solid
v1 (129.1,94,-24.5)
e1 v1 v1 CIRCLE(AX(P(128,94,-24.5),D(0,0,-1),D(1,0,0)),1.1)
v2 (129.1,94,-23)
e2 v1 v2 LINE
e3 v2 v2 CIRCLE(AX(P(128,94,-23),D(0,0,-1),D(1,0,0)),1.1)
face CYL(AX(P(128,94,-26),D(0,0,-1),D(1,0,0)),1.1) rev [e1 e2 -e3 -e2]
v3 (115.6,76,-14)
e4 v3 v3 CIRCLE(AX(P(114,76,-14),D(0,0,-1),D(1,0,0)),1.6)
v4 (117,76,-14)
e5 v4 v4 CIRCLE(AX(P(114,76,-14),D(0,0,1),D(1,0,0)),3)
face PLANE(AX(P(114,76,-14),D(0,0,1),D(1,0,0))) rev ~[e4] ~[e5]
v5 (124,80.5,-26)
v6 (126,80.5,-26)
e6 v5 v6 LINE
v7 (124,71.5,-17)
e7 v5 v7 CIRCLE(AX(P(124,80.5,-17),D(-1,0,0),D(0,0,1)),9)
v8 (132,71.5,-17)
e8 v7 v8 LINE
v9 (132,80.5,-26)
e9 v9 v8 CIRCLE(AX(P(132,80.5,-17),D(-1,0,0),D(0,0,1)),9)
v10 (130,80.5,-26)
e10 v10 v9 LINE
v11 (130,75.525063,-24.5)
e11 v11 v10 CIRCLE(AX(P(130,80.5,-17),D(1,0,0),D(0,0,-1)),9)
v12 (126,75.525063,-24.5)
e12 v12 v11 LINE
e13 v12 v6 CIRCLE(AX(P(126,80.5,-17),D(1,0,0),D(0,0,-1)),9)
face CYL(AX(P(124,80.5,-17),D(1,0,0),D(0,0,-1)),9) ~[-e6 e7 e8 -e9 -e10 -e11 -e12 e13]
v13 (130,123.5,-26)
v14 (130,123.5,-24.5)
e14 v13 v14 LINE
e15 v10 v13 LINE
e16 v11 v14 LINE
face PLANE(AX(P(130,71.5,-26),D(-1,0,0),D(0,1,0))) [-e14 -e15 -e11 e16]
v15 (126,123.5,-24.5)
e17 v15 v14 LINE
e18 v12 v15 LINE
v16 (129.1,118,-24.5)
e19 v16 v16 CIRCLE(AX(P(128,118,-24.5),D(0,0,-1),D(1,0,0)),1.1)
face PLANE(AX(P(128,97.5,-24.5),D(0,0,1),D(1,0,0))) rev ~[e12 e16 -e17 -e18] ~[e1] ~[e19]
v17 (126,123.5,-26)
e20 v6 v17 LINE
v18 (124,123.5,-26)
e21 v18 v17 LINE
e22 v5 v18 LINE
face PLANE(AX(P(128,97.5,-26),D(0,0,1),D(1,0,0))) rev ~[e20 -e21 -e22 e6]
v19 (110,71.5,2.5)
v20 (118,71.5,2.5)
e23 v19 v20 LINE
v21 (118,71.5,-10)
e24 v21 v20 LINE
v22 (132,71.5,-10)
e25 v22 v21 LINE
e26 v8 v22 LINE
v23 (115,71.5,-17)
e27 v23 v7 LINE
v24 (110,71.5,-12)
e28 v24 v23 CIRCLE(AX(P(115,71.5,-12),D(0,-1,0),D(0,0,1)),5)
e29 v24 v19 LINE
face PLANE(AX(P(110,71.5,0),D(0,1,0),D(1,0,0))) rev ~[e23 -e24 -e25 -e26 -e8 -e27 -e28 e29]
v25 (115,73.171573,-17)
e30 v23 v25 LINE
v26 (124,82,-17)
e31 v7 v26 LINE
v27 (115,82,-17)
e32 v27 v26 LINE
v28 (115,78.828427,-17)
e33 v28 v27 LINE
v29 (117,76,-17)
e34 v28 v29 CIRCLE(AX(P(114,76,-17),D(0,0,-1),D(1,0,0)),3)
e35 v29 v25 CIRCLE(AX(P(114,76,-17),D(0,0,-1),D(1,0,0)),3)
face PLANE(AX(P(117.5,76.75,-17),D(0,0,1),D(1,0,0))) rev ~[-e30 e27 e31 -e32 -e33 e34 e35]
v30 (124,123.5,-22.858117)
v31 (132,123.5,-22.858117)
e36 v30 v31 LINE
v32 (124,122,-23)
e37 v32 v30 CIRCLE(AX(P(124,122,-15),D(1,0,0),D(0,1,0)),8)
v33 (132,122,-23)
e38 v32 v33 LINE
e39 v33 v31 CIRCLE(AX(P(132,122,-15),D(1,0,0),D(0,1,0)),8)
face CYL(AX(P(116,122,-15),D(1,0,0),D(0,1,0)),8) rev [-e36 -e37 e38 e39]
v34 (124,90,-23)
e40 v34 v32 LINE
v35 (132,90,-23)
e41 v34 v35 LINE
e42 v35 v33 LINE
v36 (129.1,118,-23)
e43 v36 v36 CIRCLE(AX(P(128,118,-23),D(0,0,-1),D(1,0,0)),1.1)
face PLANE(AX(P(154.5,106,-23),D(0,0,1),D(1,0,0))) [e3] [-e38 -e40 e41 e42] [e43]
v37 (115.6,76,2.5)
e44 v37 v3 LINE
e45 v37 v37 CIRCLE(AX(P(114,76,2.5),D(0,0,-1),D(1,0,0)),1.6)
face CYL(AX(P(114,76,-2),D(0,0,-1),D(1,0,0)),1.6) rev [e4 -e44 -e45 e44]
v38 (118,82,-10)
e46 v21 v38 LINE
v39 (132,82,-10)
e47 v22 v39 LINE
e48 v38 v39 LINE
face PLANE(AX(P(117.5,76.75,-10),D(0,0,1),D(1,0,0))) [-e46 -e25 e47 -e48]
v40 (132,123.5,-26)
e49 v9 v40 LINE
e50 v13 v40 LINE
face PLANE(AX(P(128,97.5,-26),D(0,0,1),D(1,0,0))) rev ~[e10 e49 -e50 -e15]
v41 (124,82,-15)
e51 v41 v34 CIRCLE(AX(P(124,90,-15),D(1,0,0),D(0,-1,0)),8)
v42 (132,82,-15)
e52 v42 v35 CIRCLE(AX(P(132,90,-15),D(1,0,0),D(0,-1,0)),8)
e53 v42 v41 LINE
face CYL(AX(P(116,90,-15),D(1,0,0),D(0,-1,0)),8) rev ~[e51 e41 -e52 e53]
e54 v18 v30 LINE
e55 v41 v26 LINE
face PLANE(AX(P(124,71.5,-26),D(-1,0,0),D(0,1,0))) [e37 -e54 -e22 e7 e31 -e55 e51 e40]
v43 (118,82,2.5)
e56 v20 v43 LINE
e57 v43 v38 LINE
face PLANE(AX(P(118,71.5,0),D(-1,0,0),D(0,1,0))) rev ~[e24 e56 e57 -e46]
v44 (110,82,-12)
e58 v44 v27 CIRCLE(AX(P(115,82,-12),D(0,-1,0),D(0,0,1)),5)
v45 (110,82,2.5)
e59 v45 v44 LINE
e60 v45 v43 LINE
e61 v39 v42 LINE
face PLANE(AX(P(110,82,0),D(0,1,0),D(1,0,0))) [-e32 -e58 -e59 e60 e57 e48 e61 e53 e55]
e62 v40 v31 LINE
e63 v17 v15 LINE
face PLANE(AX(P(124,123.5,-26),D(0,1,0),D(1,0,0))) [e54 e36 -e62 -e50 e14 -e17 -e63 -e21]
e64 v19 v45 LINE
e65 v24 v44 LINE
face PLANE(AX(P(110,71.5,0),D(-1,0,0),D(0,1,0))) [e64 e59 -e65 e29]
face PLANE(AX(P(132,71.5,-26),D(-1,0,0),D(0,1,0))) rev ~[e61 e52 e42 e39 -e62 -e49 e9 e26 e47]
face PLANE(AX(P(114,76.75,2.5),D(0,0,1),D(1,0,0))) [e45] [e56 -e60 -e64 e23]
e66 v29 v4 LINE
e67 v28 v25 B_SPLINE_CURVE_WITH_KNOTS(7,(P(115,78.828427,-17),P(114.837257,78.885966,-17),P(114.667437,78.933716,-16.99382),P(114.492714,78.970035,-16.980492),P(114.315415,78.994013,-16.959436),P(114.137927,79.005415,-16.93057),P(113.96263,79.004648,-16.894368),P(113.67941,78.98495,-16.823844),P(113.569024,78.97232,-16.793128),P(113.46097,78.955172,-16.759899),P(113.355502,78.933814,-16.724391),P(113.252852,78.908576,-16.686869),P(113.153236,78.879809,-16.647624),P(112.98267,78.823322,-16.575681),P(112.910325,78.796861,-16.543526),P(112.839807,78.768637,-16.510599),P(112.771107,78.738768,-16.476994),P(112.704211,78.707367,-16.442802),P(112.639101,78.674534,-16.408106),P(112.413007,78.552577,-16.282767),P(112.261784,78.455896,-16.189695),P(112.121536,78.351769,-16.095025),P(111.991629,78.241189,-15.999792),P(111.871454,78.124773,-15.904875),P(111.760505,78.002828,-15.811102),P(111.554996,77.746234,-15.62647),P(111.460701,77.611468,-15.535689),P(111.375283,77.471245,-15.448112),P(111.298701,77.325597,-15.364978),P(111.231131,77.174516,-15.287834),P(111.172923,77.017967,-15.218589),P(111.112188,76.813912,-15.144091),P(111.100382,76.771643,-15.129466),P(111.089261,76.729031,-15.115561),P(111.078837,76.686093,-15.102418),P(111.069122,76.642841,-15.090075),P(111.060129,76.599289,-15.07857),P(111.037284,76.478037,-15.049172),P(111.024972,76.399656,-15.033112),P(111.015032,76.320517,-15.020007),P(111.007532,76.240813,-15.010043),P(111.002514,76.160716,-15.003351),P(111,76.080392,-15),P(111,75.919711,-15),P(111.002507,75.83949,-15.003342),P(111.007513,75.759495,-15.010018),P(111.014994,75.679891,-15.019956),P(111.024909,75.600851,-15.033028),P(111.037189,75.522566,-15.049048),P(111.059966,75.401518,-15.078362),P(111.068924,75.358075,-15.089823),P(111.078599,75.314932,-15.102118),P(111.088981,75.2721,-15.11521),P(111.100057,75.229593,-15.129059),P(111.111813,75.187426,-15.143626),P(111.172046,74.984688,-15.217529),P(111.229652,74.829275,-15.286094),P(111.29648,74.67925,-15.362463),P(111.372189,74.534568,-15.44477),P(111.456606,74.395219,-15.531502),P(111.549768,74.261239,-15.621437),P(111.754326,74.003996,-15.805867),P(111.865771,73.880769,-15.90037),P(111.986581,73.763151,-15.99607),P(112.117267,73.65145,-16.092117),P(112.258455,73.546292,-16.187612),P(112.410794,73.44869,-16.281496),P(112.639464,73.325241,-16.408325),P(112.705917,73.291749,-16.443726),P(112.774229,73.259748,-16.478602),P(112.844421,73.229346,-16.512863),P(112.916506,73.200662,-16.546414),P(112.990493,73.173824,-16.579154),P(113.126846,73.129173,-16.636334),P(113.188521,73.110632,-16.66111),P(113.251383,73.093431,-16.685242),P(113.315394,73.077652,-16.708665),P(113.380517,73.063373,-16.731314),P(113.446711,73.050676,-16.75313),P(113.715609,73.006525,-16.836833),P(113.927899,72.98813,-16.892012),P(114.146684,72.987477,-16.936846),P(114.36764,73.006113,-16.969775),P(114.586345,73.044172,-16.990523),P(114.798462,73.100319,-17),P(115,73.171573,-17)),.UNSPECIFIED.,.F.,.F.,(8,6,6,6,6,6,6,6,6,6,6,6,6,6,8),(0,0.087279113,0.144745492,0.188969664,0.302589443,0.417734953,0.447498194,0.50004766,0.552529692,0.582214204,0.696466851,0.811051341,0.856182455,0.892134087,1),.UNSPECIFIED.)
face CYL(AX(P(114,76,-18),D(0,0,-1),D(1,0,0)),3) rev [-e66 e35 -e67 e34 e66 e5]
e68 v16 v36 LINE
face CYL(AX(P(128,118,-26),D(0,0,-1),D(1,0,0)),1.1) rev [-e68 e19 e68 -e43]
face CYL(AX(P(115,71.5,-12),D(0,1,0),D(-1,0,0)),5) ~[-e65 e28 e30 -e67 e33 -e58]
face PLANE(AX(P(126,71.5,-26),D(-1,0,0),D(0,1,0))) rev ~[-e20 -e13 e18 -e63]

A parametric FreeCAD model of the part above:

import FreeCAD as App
import Part
import Sketcher

V = App.Vector
Q = App.Units.Quantity


def edges_at(feature, points):
    """Names of the edges that pass closest to the given points."""
    edges = feature.Shape.Edges
    near = lambda p: min(range(len(edges)), key=lambda i: edges[i].distToShape(Part.Vertex(*p))[0])
    return sorted({f"Edge{near(p) + 1}" for p in points})

doc = App.newDocument("Part")
body = doc.addObject("PartDesign::Body", "Body")

# Sketch on XY plane
sketch1 = doc.addObject("Sketcher::SketchObject", "Sketch")
body.addObject(sketch1)
sketch1.AttachmentSupport = (doc.XY_Plane, [""])
sketch1.MapMode = "FlatFace"
sketch1.AttachmentOffset = App.Placement(V(0, 0, -28), App.Rotation())
sketch1.addGeometry(Part.Circle(V(74, 76, 0), V(0, 0, 1), 1.6), False)
sketch1.addConstraint([
    Sketcher.Constraint("Diameter", 0, Q("3.2 mm")),
    Sketcher.Constraint("DistanceX", -1, 1, 0, 3, Q("74 mm")),
    Sketcher.Constraint("DistanceY", -1, 1, 0, 3, Q("76 mm")),
])
pad1 = doc.addObject("PartDesign::Pad", "Pad")
body.addObject(pad1)
pad1.Profile = sketch1
pad1.Length = 28
body2 = doc.addObject("PartDesign::Body", "Body001")

# Sketch on XY plane
sketch2 = doc.addObject("Sketcher::SketchObject", "Sketch001")
body2.addObject(sketch2)
sketch2.AttachmentSupport = (doc.getObject("XY_Plane001"), [""])
sketch2.MapMode = "FlatFace"
sketch2.AttachmentOffset = App.Placement(V(0, 0, -26), App.Rotation())
sketch2.addGeometry([
    Part.LineSegment(V(70, 82, 0), V(70, 71.5, 0)),
    Part.LineSegment(V(70, 71.5, 0), V(78, 71.5, 0)),
    Part.LineSegment(V(78, 71.5, 0), V(78, 82, 0)),
    Part.LineSegment(V(78, 82, 0), V(70, 82, 0)),
], False)
sketch2.addConstraint([
    Sketcher.Constraint("Coincident", 0, 2, 1, 1),
    Sketcher.Constraint("Coincident", 1, 2, 2, 1),
    Sketcher.Constraint("Coincident", 2, 2, 3, 1),
    Sketcher.Constraint("Coincident", 3, 2, 0, 1),
    Sketcher.Constraint("Vertical", 0),
    Sketcher.Constraint("Horizontal", 1),
    Sketcher.Constraint("Vertical", 2),
    Sketcher.Constraint("Horizontal", 3),
    Sketcher.Constraint("DistanceX", 1, 1, 1, 2, Q("8 mm")),
    Sketcher.Constraint("DistanceY", 0, 2, 0, 1, Q("10.5 mm")),
    Sketcher.Constraint("DistanceX", -1, 1, 0, 2, Q("70 mm")),
    Sketcher.Constraint("DistanceY", -1, 1, 2, 2, Q("82 mm")),
])
pad2 = doc.addObject("PartDesign::Pad", "Pad001")
body2.addObject(pad2)
pad2.Profile = sketch2
pad2.Length = 2.5
doc.recompute()

boolean = doc.addObject("PartDesign::Boolean", "Boolean")
body2.addObject(boolean)
boolean.Type = "Cut"
boolean.addObjects([body])
body3 = doc.addObject("PartDesign::Body", "Body002")
doc.recompute()

body2.Placement = App.Placement(V(40, 0, 26), App.Rotation(V(0, 0, 1), 0))
boolean2 = doc.addObject("PartDesign::Boolean", "Boolean001")
body3.addObject(boolean2)
boolean2.Type = "Fuse"
boolean2.addObjects([body2])
body4 = doc.addObject("PartDesign::Body", "Body003")

# Sketch on XY plane
sketch3 = doc.addObject("Sketcher::SketchObject", "Sketch002")
body4.addObject(sketch3)
sketch3.AttachmentSupport = (doc.getObject("XY_Plane003"), [""])
sketch3.MapMode = "FlatFace"
sketch3.AttachmentOffset = App.Placement(V(0, 0, -26), App.Rotation())
sketch3.addGeometry(Part.Circle(V(74, 118, 0), V(0, 0, 1), 1.1), False)
sketch3.addConstraint([
    Sketcher.Constraint("Diameter", 0, Q("2.2 mm")),
    Sketcher.Constraint("DistanceX", -1, 1, 0, 3, Q("74 mm")),
    Sketcher.Constraint("DistanceY", -1, 1, 0, 3, Q("118 mm")),
])
pad3 = doc.addObject("PartDesign::Pad", "Pad002")
body4.addObject(pad3)
pad3.Profile = sketch3
pad3.Length = 28
body5 = doc.addObject("PartDesign::Body", "Body004")
body5.AllowCompound = True

# Sketch on XY plane
sketch4 = doc.addObject("Sketcher::SketchObject", "Sketch003")
body5.addObject(sketch4)
sketch4.AttachmentSupport = (doc.getObject("XY_Plane004"), [""])
sketch4.MapMode = "FlatFace"
sketch4.AttachmentOffset = App.Placement(V(0, 0, -26), App.Rotation())
sketch4.addGeometry(Part.Circle(V(74, 94, 0), V(0, 0, 1), 1.1), False)
sketch4.addConstraint([
    Sketcher.Constraint("Diameter", 0, Q("2.2 mm")),
    Sketcher.Constraint("DistanceX", -1, 1, 0, 3, Q("74 mm")),
    Sketcher.Constraint("DistanceY", -1, 1, 0, 3, Q("94 mm")),
])
pad4 = doc.addObject("PartDesign::Pad", "Pad003")
body5.addObject(pad4)
pad4.Profile = sketch4
pad4.Length = 28
doc.recompute()

boolean3 = doc.addObject("PartDesign::Boolean", "Boolean002")
body5.addObject(boolean3)
boolean3.Type = "Fuse"
boolean3.addObjects([body4])
body6 = doc.addObject("PartDesign::Body", "Body005")
body6.AllowCompound = True
doc.recompute()

body5.Placement = App.Placement(V(54, 0, 0), App.Rotation(V(0, 0, 1), 0))
boolean4 = doc.addObject("PartDesign::Boolean", "Boolean003")
body6.addObject(boolean4)
boolean4.Type = "Fuse"
boolean4.addObjects([body5])
body7 = doc.addObject("PartDesign::Body", "Body006")

# Sketch on XY plane
sketch5 = doc.addObject("Sketcher::SketchObject", "Sketch004")
body7.addObject(sketch5)
sketch5.AttachmentSupport = (doc.getObject("XY_Plane006"), [""])
sketch5.MapMode = "FlatFace"
sketch5.AttachmentOffset = App.Placement(V(0, 0, -26), App.Rotation())
sketch5.addGeometry(Part.Circle(V(74, 79, 0), V(0, 0, 1), 1.6), False)
sketch5.addConstraint([
    Sketcher.Constraint("Diameter", 0, Q("3.2 mm")),
    Sketcher.Constraint("DistanceX", -1, 1, 0, 3, Q("74 mm")),
    Sketcher.Constraint("DistanceY", -1, 1, 0, 3, Q("79 mm")),
])
pad5 = doc.addObject("PartDesign::Pad", "Pad004")
body7.addObject(pad5)
pad5.Profile = sketch5
pad5.Length = 28
body8 = doc.addObject("PartDesign::Body", "Body007")

# Sketch on XY plane
sketch6 = doc.addObject("Sketcher::SketchObject", "Sketch005")
body8.addObject(sketch6)
sketch6.AttachmentSupport = (doc.getObject("XY_Plane007"), [""])
sketch6.MapMode = "FlatFace"
sketch6.AttachmentOffset = App.Placement(V(0, 0, -26), App.Rotation())
sketch6.addGeometry(Part.Circle(V(74, 79, 0), V(0, 0, 1), 3), False)
sketch6.addConstraint([
    Sketcher.Constraint("Diameter", 0, Q("6 mm")),
    Sketcher.Constraint("DistanceX", -1, 1, 0, 3, Q("74 mm")),
    Sketcher.Constraint("DistanceY", -1, 1, 0, 3, Q("79 mm")),
])
pad6 = doc.addObject("PartDesign::Pad", "Pad005")
body8.addObject(pad6)
pad6.Profile = sketch6
pad6.Length = 4
doc.recompute()

boolean5 = doc.addObject("PartDesign::Boolean", "Boolean004")
body8.addObject(boolean5)
boolean5.Type = "Fuse"
boolean5.addObjects([body7])
body9 = doc.addObject("PartDesign::Body", "Body008")
doc.recompute()

body8.Placement = App.Placement(V(40, -3, 8), App.Rotation(V(0, 0, 1), 0))
boolean6 = doc.addObject("PartDesign::Boolean", "Boolean005")
body9.addObject(boolean6)
boolean6.Type = "Fuse"
boolean6.addObjects([body8])
body10 = doc.addObject("PartDesign::Body", "Body009")

# Sketch on XY plane
sketch7 = doc.addObject("Sketcher::SketchObject", "Sketch006")
body10.addObject(sketch7)
sketch7.AttachmentSupport = (doc.getObject("XY_Plane009"), [""])
sketch7.MapMode = "FlatFace"
sketch7.AttachmentOffset = App.Placement(V(0, 0, -10), App.Rotation())
sketch7.addGeometry([
    Part.LineSegment(V(124, 82, 0), V(124, 71.5, 0)),
    Part.LineSegment(V(124, 71.5, 0), V(132, 71.5, 0)),
    Part.LineSegment(V(132, 71.5, 0), V(132, 82, 0)),
    Part.LineSegment(V(132, 82, 0), V(124, 82, 0)),
], False)
sketch7.addConstraint([
    Sketcher.Constraint("Coincident", 0, 2, 1, 1),
    Sketcher.Constraint("Coincident", 1, 2, 2, 1),
    Sketcher.Constraint("Coincident", 2, 2, 3, 1),
    Sketcher.Constraint("Coincident", 3, 2, 0, 1),
    Sketcher.Constraint("Vertical", 0),
    Sketcher.Constraint("Horizontal", 1),
    Sketcher.Constraint("Vertical", 2),
    Sketcher.Constraint("Horizontal", 3),
    Sketcher.Constraint("DistanceX", 1, 1, 1, 2, Q("8 mm")),
    Sketcher.Constraint("DistanceY", 0, 2, 0, 1, Q("10.5 mm")),
    Sketcher.Constraint("DistanceX", -1, 1, 0, 2, Q("124 mm")),
    Sketcher.Constraint("DistanceY", -1, 1, 2, 2, Q("82 mm")),
])
pad7 = doc.addObject("PartDesign::Pad", "Pad006")
body10.addObject(pad7)
pad7.Profile = sketch7
pad7.Length = 10
body11 = doc.addObject("PartDesign::Body", "Body010")

# Sketch on XY plane
sketch8 = doc.addObject("Sketcher::SketchObject", "Sketch007")
body11.addObject(sketch8)
sketch8.AttachmentSupport = (doc.getObject("XY_Plane010"), [""])
sketch8.MapMode = "FlatFace"
sketch8.AttachmentOffset = App.Placement(V(0, 0, -26), App.Rotation())
sketch8.addGeometry([
    Part.LineSegment(V(72, 123.5, 0), V(72, 71.5, 0)),
    Part.LineSegment(V(72, 71.5, 0), V(76, 71.5, 0)),
    Part.LineSegment(V(76, 71.5, 0), V(76, 123.5, 0)),
    Part.LineSegment(V(76, 123.5, 0), V(72, 123.5, 0)),
], False)
sketch8.addConstraint([
    Sketcher.Constraint("Coincident", 0, 2, 1, 1),
    Sketcher.Constraint("Coincident", 1, 2, 2, 1),
    Sketcher.Constraint("Coincident", 2, 2, 3, 1),
    Sketcher.Constraint("Coincident", 3, 2, 0, 1),
    Sketcher.Constraint("Vertical", 0),
    Sketcher.Constraint("Horizontal", 1),
    Sketcher.Constraint("Vertical", 2),
    Sketcher.Constraint("Horizontal", 3),
    Sketcher.Constraint("DistanceX", 1, 1, 1, 2, Q("4 mm")),
    Sketcher.Constraint("DistanceY", 0, 2, 0, 1, Q("52 mm")),
    Sketcher.Constraint("DistanceX", -1, 1, 0, 2, Q("72 mm")),
    Sketcher.Constraint("DistanceY", -1, 1, 0, 2, Q("71.5 mm")),
])
pad8 = doc.addObject("PartDesign::Pad", "Pad007")
body11.addObject(pad8)
pad8.Profile = sketch8
pad8.Length = 1.5
body12 = doc.addObject("PartDesign::Body", "Body011")

# Sketch on XY plane
sketch9 = doc.addObject("Sketcher::SketchObject", "Sketch008")
body12.addObject(sketch9)
sketch9.AttachmentSupport = (doc.getObject("XY_Plane011"), [""])
sketch9.MapMode = "FlatFace"
sketch9.AttachmentOffset = App.Placement(V(0, 0, -27), App.Rotation())
sketch9.addGeometry([
    Part.LineSegment(V(62, 130, 0), V(62, 82, 0)),
    Part.LineSegment(V(62, 82, 0), V(139, 82, 0)),
    Part.LineSegment(V(139, 82, 0), V(139, 130, 0)),
    Part.LineSegment(V(139, 130, 0), V(62, 130, 0)),
], False)
sketch9.addConstraint([
    Sketcher.Constraint("Coincident", 0, 2, 1, 1),
    Sketcher.Constraint("Coincident", 1, 2, 2, 1),
    Sketcher.Constraint("Coincident", 2, 2, 3, 1),
    Sketcher.Constraint("Coincident", 3, 2, 0, 1),
    Sketcher.Constraint("Vertical", 0),
    Sketcher.Constraint("Horizontal", 1),
    Sketcher.Constraint("Vertical", 2),
    Sketcher.Constraint("Horizontal", 3),
    Sketcher.Constraint("DistanceX", 1, 1, 1, 2, Q("77 mm")),
    Sketcher.Constraint("DistanceY", 0, 2, 0, 1, Q("48 mm")),
    Sketcher.Constraint("DistanceX", -1, 1, 0, 2, Q("62 mm")),
    Sketcher.Constraint("DistanceY", -1, 1, 0, 2, Q("82 mm")),
])
pad9 = doc.addObject("PartDesign::Pad", "Pad008")
body12.addObject(pad9)
pad9.Profile = sketch9
pad9.Length = 40
doc.recompute()

fillet = doc.addObject("PartDesign::Fillet", "Fillet")
body12.addObject(fillet)
fillet.Base = (pad9, edges_at(pad9, [
    (100.5, 82, -27),
    (100.5, 82, 13),
    (100.5, 130, -27),
    (100.5, 130, 13),
]))
fillet.Radius = 8
body13 = doc.addObject("PartDesign::Body", "Body012")
doc.recompute()

body12.Placement = App.Placement(V(0, 0, 4), App.Rotation(V(0, 0, 1), 0))
boolean7 = doc.addObject("PartDesign::Boolean", "Boolean006")
body13.addObject(boolean7)
boolean7.Type = "Fuse"
boolean7.addObjects([body12])
body14 = doc.addObject("PartDesign::Body", "Body013")

# Sketch on XY plane
sketch10 = doc.addObject("Sketcher::SketchObject", "Sketch009")
body14.addObject(sketch10)
sketch10.AttachmentSupport = (doc.getObject("XY_Plane013"), [""])
sketch10.MapMode = "FlatFace"
sketch10.AttachmentOffset = App.Placement(V(0, 0, -26), App.Rotation())
sketch10.addGeometry([
    Part.LineSegment(V(70, 123.5, 0), V(70, 71.5, 0)),
    Part.LineSegment(V(70, 71.5, 0), V(78, 71.5, 0)),
    Part.LineSegment(V(78, 71.5, 0), V(78, 123.5, 0)),
    Part.LineSegment(V(78, 123.5, 0), V(70, 123.5, 0)),
], False)
sketch10.addConstraint([
    Sketcher.Constraint("Coincident", 0, 2, 1, 1),
    Sketcher.Constraint("Coincident", 1, 2, 2, 1),
    Sketcher.Constraint("Coincident", 2, 2, 3, 1),
    Sketcher.Constraint("Coincident", 3, 2, 0, 1),
    Sketcher.Constraint("Vertical", 0),
    Sketcher.Constraint("Horizontal", 1),
    Sketcher.Constraint("Vertical", 2),
    Sketcher.Constraint("Horizontal", 3),
    Sketcher.Constraint("DistanceX", 1, 1, 1, 2, Q("8 mm")),
    Sketcher.Constraint("DistanceY", 0, 2, 0, 1, Q("52 mm")),
    Sketcher.Constraint("DistanceX", -1, 1, 0, 2, Q("70 mm")),
    Sketcher.Constraint("DistanceY", -1, 1, 0, 2, Q("71.5 mm")),
])
pad10 = doc.addObject("PartDesign::Pad", "Pad009")
body14.addObject(pad10)
pad10.Profile = sketch10
pad10.Length = 26
doc.recompute()

boolean8 = doc.addObject("PartDesign::Boolean", "Boolean007")
body14.addObject(boolean8)
boolean8.Type = "Cut"
boolean8.addObjects([body13])
doc.recompute()

fillet2 = doc.addObject("PartDesign::Fillet", "Fillet001")
body14.addObject(fillet2)
fillet2.Base = (boolean8, edges_at(boolean8, [(74, 71.5, -26)]))
fillet2.Radius = 9
doc.recompute()

boolean9 = doc.addObject("PartDesign::Boolean", "Boolean008")
body14.addObject(boolean9)
boolean9.Type = "Cut"
boolean9.addObjects([body11])
body15 = doc.addObject("PartDesign::Body", "Body014")
doc.recompute()

body14.Placement = App.Placement(V(54, 0, 0), App.Rotation(V(0, 0, 1), 0))
boolean10 = doc.addObject("PartDesign::Boolean", "Boolean009")
body15.addObject(boolean10)
boolean10.Type = "Fuse"
boolean10.addObjects([body14])
doc.recompute()

boolean11 = doc.addObject("PartDesign::Boolean", "Boolean010")
body15.addObject(boolean11)
boolean11.Type = "Cut"
boolean11.addObjects([body10])
body16 = doc.addObject("PartDesign::Body", "Body015")

# Sketch on XY plane
sketch11 = doc.addObject("Sketcher::SketchObject", "Sketch010")
body16.addObject(sketch11)
sketch11.AttachmentSupport = (doc.getObject("XY_Plane015"), [""])
sketch11.MapMode = "FlatFace"
sketch11.AttachmentOffset = App.Placement(V(0, 0, -17), App.Rotation())
sketch11.addGeometry([
    Part.LineSegment(V(110, 82, 0), V(110, 71.5, 0)),
    Part.LineSegment(V(110, 71.5, 0), V(125, 71.5, 0)),
    Part.LineSegment(V(125, 71.5, 0), V(125, 82, 0)),
    Part.LineSegment(V(125, 82, 0), V(110, 82, 0)),
], False)
sketch11.addConstraint([
    Sketcher.Constraint("Coincident", 0, 2, 1, 1),
    Sketcher.Constraint("Coincident", 1, 2, 2, 1),
    Sketcher.Constraint("Coincident", 2, 2, 3, 1),
    Sketcher.Constraint("Coincident", 3, 2, 0, 1),
    Sketcher.Constraint("Vertical", 0),
    Sketcher.Constraint("Horizontal", 1),
    Sketcher.Constraint("Vertical", 2),
    Sketcher.Constraint("Horizontal", 3),
    Sketcher.Constraint("DistanceX", 1, 1, 1, 2, Q("15 mm")),
    Sketcher.Constraint("DistanceY", 0, 2, 0, 1, Q("10.5 mm")),
    Sketcher.Constraint("DistanceX", -1, 1, 0, 2, Q("110 mm")),
    Sketcher.Constraint("DistanceY", -1, 1, 2, 2, Q("82 mm")),
])
pad11 = doc.addObject("PartDesign::Pad", "Pad010")
body16.addObject(pad11)
pad11.Profile = sketch11
pad11.Length = 7
body17 = doc.addObject("PartDesign::Body", "Body016")
body17.AllowCompound = True

# Sketch on XY plane
sketch12 = doc.addObject("Sketcher::SketchObject", "Sketch011")
body17.addObject(sketch12)
sketch12.AttachmentSupport = (doc.getObject("XY_Plane016"), [""])
sketch12.MapMode = "FlatFace"
sketch12.AttachmentOffset = App.Placement(V(0, 0, -10), App.Rotation())
sketch12.addGeometry([
    Part.LineSegment(V(110, 82, 0), V(110, 71.5, 0)),
    Part.LineSegment(V(110, 71.5, 0), V(118, 71.5, 0)),
    Part.LineSegment(V(118, 71.5, 0), V(118, 82, 0)),
    Part.LineSegment(V(118, 82, 0), V(110, 82, 0)),
], False)
sketch12.addConstraint([
    Sketcher.Constraint("Coincident", 0, 2, 1, 1),
    Sketcher.Constraint("Coincident", 1, 2, 2, 1),
    Sketcher.Constraint("Coincident", 2, 2, 3, 1),
    Sketcher.Constraint("Coincident", 3, 2, 0, 1),
    Sketcher.Constraint("Vertical", 0),
    Sketcher.Constraint("Horizontal", 1),
    Sketcher.Constraint("Vertical", 2),
    Sketcher.Constraint("Horizontal", 3),
    Sketcher.Constraint("DistanceX", 1, 1, 1, 2, Q("8 mm")),
    Sketcher.Constraint("DistanceY", 0, 2, 0, 1, Q("10.5 mm")),
    Sketcher.Constraint("DistanceX", -1, 1, 0, 2, Q("110 mm")),
    Sketcher.Constraint("DistanceY", -1, 1, 2, 2, Q("82 mm")),
])
pad12 = doc.addObject("PartDesign::Pad", "Pad011")
body17.addObject(pad12)
pad12.Profile = sketch12
pad12.Length = 10
doc.recompute()

boolean12 = doc.addObject("PartDesign::Boolean", "Boolean011")
body17.addObject(boolean12)
boolean12.Type = "Fuse"
boolean12.addObjects([body15])
doc.recompute()

boolean13 = doc.addObject("PartDesign::Boolean", "Boolean012")
body17.addObject(boolean13)
boolean13.Type = "Fuse"
boolean13.addObjects([body16])
doc.recompute()

fillet3 = doc.addObject("PartDesign::Fillet", "Fillet002")
body17.addObject(fillet3)
fillet3.Base = (boolean13, edges_at(boolean13, [(110, 76.75, -17)]))
fillet3.Radius = 5
doc.recompute()

boolean14 = doc.addObject("PartDesign::Boolean", "Boolean013")
body17.addObject(boolean14)
boolean14.Type = "Cut"
boolean14.addObjects([body9])
doc.recompute()

boolean15 = doc.addObject("PartDesign::Boolean", "Boolean014")
body17.addObject(boolean15)
boolean15.Type = "Cut"
boolean15.addObjects([body6])
doc.recompute()

boolean16 = doc.addObject("PartDesign::Boolean", "Boolean015")
body17.addObject(boolean16)
boolean16.Type = "Fuse"
boolean16.addObjects([body3])

doc.recompute()
